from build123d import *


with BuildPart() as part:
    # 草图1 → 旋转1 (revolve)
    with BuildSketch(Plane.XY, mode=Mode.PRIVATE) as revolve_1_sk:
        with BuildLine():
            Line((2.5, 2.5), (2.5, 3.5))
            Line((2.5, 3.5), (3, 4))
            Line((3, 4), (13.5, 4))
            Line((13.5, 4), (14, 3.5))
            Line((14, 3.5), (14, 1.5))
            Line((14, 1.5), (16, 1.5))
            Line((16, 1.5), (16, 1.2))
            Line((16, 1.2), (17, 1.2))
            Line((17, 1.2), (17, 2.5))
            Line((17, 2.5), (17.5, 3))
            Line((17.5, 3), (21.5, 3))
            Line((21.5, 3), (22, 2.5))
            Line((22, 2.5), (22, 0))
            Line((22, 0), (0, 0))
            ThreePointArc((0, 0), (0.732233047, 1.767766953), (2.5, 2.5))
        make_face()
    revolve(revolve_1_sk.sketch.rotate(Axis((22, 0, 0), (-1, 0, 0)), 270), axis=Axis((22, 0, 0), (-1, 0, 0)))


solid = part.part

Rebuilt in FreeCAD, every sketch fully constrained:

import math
import FreeCAD as App
import Part
import Sketcher
from FreeCAD import Vector

doc = App.newDocument("Part")
body = doc.addObject("PartDesign::Body", "Body")

# Sketch on XY plane
sketch1 = body.newObject("Sketcher::SketchObject", "Sketch")
sketch1.AttachmentSupport = (doc.getObject("XY_Plane"), [""])
sketch1.MapMode = "FlatFace"
sketch1.addGeometry([
    Part.LineSegment(Vector(2.5, 3.5, 0), Vector(2.5, 2.5, 0)),  # 0
    Part.ArcOfCircle(Part.Circle(Vector(2.5, 0, 0), Vector(0, 0, 1), 2.5), math.radians(90), math.radians(180)),  # 1
    Part.LineSegment(Vector(0, 0, 0), Vector(22, 0, 0)),  # 2
    Part.LineSegment(Vector(22, 0, 0), Vector(22, 2.5, 0)),  # 3
    Part.LineSegment(Vector(22, 2.5, 0), Vector(21.5, 3, 0)),  # 4
    Part.LineSegment(Vector(21.5, 3, 0), Vector(17.5, 3, 0)),  # 5
    Part.LineSegment(Vector(17.5, 3, 0), Vector(17, 2.5, 0)),  # 6
    Part.LineSegment(Vector(17, 2.5, 0), Vector(17, 1.2, 0)),  # 7
    Part.LineSegment(Vector(17, 1.2, 0), Vector(16, 1.2, 0)),  # 8
    Part.LineSegment(Vector(16, 1.2, 0), Vector(16, 1.5, 0)),  # 9
    Part.LineSegment(Vector(16, 1.5, 0), Vector(14, 1.5, 0)),  # 10
    Part.LineSegment(Vector(14, 1.5, 0), Vector(14, 3.5, 0)),  # 11
    Part.LineSegment(Vector(14, 3.5, 0), Vector(13.5, 4, 0)),  # 12
    Part.LineSegment(Vector(13.5, 4, 0), Vector(3, 4, 0)),  # 13
    Part.LineSegment(Vector(3, 4, 0), Vector(2.5, 3.5, 0)),  # 14
], False)
sketch1.addConstraint([
    Sketcher.Constraint("Coincident", 0, 2, 1, 1),
    Sketcher.Constraint("Coincident", 1, 2, 2, 1),
    Sketcher.Constraint("Coincident", 2, 2, 3, 1),
    Sketcher.Constraint("Coincident", 3, 2, 4, 1),
    Sketcher.Constraint("Coincident", 4, 2, 5, 1),
    Sketcher.Constraint("Coincident", 5, 2, 6, 1),
    Sketcher.Constraint("Coincident", 6, 2, 7, 1),
    Sketcher.Constraint("Coincident", 7, 2, 8, 1),
    Sketcher.Constraint("Coincident", 8, 2, 9, 1),
    Sketcher.Constraint("Coincident", 9, 2, 10, 1),
    Sketcher.Constraint("Coincident", 10, 2, 11, 1),
    Sketcher.Constraint("Coincident", 11, 2, 12, 1),
    Sketcher.Constraint("Coincident", 12, 2, 13, 1),
    Sketcher.Constraint("Coincident", 13, 2, 14, 1),
    Sketcher.Constraint("Coincident", 14, 2, 0, 1),
    Sketcher.Constraint("Vertical", 0),
    Sketcher.Constraint("Horizontal", 2),
    Sketcher.Constraint("Vertical", 3),
    Sketcher.Constraint("Horizontal", 5),
    Sketcher.Constraint("Vertical", 7),
    Sketcher.Constraint("Horizontal", 8),
    Sketcher.Constraint("Vertical", 9),
    Sketcher.Constraint("Horizontal", 10),
    Sketcher.Constraint("Vertical", 11),
    Sketcher.Constraint("Horizontal", 13),
    Sketcher.Constraint("Coincident", 1, 2, -1, 1),
    Sketcher.Constraint("PointOnObject", 1, 3, -1),
    Sketcher.Constraint("Perpendicular", 4, 6),
    Sketcher.Constraint("Perpendicular", 6, 12),
    Sketcher.Constraint("Perpendicular", 12, 14),
    Sketcher.Constraint("Horizontal", 0, 2, 3, 2),
    Sketcher.Constraint("Horizontal", 3, 2, 6, 2),
    Sketcher.Constraint("Horizontal", 11, 2, 14, 2),
    Sketcher.Constraint("Vertical", 1, 3, 0, 2),
    Sketcher.Constraint("Equal", 8, 0),
    Sketcher.Constraint("Equal", 10, 11),
    Sketcher.Constraint("Equal", 4, 6),
    Sketcher.Constraint("Equal", 6, 12),
    Sketcher.Constraint("Radius", 1, 2.5),
    Sketcher.Constraint("DistanceX", 2, 1, 2, 2, 22.0),
    Sketcher.Constraint("DistanceX", 5, 2, 5, 1, 4.0),
    Sketcher.Constraint("DistanceX", 8, 2, 8, 1, 1.0),
    Sketcher.Constraint("DistanceX", 10, 2, 10, 1, 2.0),
    Sketcher.Constraint("DistanceX", 13, 2, 13, 1, 10.5),
    Sketcher.Constraint("DistanceY", 7, 2, 7, 1, 1.3),
])
revolution = body.newObject("PartDesign::Revolution", "Revolution")
revolution.Profile = sketch1
revolution.ReferenceAxis = (sketch1, ["H_Axis"])
revolution.Angle = 360

doc.recompute()
